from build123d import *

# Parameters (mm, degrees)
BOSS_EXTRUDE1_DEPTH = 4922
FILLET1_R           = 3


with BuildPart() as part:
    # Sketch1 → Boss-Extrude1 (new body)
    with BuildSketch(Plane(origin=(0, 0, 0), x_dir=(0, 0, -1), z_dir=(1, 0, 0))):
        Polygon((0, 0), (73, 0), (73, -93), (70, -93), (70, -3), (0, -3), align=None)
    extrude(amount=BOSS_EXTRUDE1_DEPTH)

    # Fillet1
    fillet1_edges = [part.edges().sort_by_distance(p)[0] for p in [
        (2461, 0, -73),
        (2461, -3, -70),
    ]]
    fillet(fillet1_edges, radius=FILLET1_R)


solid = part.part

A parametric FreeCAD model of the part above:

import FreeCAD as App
import Part
import Sketcher
from FreeCAD import Vector


def edges_at(feature, points):
    """Names of the edges that pass closest to the given points."""
    edges = feature.Shape.Edges
    near = lambda p: min(range(len(edges)), key=lambda i: edges[i].distToShape(Part.Vertex(*p))[0])
    return sorted({f"Edge{near(p) + 1}" for p in points})

doc = App.newDocument("Part")
params = doc.addObject("Spreadsheet::Sheet", "Params")
for row, (alias, value) in enumerate([
    ("sketch1_width", "3 mm"),
    ("sketch1_width2", "90 mm"),
    ("sketch1_height", "73 mm"),
    ("pad1_length", "4922 mm"),
    ("fillet_radius", "3 mm"),
], start=1):
    params.set(f"A{row}", alias)
    params.set(f"B{row}", "=" + value)
    params.setAlias(f"B{row}", alias)

body = doc.addObject("PartDesign::Body", "Body")

# Sketch on YZ plane
sketch1 = body.newObject("Sketcher::SketchObject", "Sketch")
sketch1.AttachmentSupport = (doc.getObject("YZ_Plane"), [""])
sketch1.MapMode = "FlatFace"
sketch1.addGeometry(Part.LineSegment(Vector(0, -73, 0), Vector(0, 0, 0)), False)
sketch1.addGeometry(Part.LineSegment(Vector(0, 0, 0), Vector(-3, 0, 0)), False)
sketch1.addGeometry(Part.LineSegment(Vector(-3, 0, 0), Vector(-3, -70, 0)), False)
sketch1.addGeometry(Part.LineSegment(Vector(-3, -70, 0), Vector(-93, -70, 0)), False)
sketch1.addGeometry(Part.LineSegment(Vector(-93, -70, 0), Vector(-93, -73, 0)), False)
sketch1.addGeometry(Part.LineSegment(Vector(-93, -73, 0), Vector(0, -73, 0)), False)
sketch1.addConstraint(Sketcher.Constraint("Coincident", 0, 2, 1, 1))
sketch1.addConstraint(Sketcher.Constraint("Coincident", 1, 2, 2, 1))
sketch1.addConstraint(Sketcher.Constraint("Coincident", 2, 2, 3, 1))
sketch1.addConstraint(Sketcher.Constraint("Coincident", 3, 2, 4, 1))
sketch1.addConstraint(Sketcher.Constraint("Coincident", 4, 2, 5, 1))
sketch1.addConstraint(Sketcher.Constraint("Coincident", 5, 2, 0, 1))
sketch1.addConstraint(Sketcher.Constraint("Vertical", 0))
sketch1.addConstraint(Sketcher.Constraint("Horizontal", 1))
sketch1.addConstraint(Sketcher.Constraint("Vertical", 2))
sketch1.addConstraint(Sketcher.Constraint("Horizontal", 3))
sketch1.addConstraint(Sketcher.Constraint("Vertical", 4))
sketch1.addConstraint(Sketcher.Constraint("Horizontal", 5))
sketch1.addConstraint(Sketcher.Constraint("Coincident", 0, 2, -1, 1))
sketch1.addConstraint(Sketcher.Constraint("Equal", 1, 4))
sketch1.addConstraint(Sketcher.Constraint("DistanceX", 1, 2, 1, 1, 3.0))
sketch1.addConstraint(Sketcher.Constraint("DistanceX", 3, 2, 3, 1, 90.0))
sketch1.addConstraint(Sketcher.Constraint("DistanceY", 0, 1, 0, 2, 73.0))
sketch1.setExpression("Constraints[14]", "Params.sketch1_width")
sketch1.setExpression("Constraints[15]", "Params.sketch1_width2")
sketch1.setExpression("Constraints[16]", "Params.sketch1_height")
pad1 = body.newObject("PartDesign::Pad", "Pad")
pad1.Profile = sketch1
pad1.setExpression("Length", "Params.pad1_length")
doc.recompute()

fillet = body.newObject("PartDesign::Fillet", "Fillet")
fillet.Base = (pad1, edges_at(pad1, [(2461, 0, -73), (2461, -3, -70)]))
fillet.setExpression("Radius", "Params.fillet_radius")

doc.recompute()
